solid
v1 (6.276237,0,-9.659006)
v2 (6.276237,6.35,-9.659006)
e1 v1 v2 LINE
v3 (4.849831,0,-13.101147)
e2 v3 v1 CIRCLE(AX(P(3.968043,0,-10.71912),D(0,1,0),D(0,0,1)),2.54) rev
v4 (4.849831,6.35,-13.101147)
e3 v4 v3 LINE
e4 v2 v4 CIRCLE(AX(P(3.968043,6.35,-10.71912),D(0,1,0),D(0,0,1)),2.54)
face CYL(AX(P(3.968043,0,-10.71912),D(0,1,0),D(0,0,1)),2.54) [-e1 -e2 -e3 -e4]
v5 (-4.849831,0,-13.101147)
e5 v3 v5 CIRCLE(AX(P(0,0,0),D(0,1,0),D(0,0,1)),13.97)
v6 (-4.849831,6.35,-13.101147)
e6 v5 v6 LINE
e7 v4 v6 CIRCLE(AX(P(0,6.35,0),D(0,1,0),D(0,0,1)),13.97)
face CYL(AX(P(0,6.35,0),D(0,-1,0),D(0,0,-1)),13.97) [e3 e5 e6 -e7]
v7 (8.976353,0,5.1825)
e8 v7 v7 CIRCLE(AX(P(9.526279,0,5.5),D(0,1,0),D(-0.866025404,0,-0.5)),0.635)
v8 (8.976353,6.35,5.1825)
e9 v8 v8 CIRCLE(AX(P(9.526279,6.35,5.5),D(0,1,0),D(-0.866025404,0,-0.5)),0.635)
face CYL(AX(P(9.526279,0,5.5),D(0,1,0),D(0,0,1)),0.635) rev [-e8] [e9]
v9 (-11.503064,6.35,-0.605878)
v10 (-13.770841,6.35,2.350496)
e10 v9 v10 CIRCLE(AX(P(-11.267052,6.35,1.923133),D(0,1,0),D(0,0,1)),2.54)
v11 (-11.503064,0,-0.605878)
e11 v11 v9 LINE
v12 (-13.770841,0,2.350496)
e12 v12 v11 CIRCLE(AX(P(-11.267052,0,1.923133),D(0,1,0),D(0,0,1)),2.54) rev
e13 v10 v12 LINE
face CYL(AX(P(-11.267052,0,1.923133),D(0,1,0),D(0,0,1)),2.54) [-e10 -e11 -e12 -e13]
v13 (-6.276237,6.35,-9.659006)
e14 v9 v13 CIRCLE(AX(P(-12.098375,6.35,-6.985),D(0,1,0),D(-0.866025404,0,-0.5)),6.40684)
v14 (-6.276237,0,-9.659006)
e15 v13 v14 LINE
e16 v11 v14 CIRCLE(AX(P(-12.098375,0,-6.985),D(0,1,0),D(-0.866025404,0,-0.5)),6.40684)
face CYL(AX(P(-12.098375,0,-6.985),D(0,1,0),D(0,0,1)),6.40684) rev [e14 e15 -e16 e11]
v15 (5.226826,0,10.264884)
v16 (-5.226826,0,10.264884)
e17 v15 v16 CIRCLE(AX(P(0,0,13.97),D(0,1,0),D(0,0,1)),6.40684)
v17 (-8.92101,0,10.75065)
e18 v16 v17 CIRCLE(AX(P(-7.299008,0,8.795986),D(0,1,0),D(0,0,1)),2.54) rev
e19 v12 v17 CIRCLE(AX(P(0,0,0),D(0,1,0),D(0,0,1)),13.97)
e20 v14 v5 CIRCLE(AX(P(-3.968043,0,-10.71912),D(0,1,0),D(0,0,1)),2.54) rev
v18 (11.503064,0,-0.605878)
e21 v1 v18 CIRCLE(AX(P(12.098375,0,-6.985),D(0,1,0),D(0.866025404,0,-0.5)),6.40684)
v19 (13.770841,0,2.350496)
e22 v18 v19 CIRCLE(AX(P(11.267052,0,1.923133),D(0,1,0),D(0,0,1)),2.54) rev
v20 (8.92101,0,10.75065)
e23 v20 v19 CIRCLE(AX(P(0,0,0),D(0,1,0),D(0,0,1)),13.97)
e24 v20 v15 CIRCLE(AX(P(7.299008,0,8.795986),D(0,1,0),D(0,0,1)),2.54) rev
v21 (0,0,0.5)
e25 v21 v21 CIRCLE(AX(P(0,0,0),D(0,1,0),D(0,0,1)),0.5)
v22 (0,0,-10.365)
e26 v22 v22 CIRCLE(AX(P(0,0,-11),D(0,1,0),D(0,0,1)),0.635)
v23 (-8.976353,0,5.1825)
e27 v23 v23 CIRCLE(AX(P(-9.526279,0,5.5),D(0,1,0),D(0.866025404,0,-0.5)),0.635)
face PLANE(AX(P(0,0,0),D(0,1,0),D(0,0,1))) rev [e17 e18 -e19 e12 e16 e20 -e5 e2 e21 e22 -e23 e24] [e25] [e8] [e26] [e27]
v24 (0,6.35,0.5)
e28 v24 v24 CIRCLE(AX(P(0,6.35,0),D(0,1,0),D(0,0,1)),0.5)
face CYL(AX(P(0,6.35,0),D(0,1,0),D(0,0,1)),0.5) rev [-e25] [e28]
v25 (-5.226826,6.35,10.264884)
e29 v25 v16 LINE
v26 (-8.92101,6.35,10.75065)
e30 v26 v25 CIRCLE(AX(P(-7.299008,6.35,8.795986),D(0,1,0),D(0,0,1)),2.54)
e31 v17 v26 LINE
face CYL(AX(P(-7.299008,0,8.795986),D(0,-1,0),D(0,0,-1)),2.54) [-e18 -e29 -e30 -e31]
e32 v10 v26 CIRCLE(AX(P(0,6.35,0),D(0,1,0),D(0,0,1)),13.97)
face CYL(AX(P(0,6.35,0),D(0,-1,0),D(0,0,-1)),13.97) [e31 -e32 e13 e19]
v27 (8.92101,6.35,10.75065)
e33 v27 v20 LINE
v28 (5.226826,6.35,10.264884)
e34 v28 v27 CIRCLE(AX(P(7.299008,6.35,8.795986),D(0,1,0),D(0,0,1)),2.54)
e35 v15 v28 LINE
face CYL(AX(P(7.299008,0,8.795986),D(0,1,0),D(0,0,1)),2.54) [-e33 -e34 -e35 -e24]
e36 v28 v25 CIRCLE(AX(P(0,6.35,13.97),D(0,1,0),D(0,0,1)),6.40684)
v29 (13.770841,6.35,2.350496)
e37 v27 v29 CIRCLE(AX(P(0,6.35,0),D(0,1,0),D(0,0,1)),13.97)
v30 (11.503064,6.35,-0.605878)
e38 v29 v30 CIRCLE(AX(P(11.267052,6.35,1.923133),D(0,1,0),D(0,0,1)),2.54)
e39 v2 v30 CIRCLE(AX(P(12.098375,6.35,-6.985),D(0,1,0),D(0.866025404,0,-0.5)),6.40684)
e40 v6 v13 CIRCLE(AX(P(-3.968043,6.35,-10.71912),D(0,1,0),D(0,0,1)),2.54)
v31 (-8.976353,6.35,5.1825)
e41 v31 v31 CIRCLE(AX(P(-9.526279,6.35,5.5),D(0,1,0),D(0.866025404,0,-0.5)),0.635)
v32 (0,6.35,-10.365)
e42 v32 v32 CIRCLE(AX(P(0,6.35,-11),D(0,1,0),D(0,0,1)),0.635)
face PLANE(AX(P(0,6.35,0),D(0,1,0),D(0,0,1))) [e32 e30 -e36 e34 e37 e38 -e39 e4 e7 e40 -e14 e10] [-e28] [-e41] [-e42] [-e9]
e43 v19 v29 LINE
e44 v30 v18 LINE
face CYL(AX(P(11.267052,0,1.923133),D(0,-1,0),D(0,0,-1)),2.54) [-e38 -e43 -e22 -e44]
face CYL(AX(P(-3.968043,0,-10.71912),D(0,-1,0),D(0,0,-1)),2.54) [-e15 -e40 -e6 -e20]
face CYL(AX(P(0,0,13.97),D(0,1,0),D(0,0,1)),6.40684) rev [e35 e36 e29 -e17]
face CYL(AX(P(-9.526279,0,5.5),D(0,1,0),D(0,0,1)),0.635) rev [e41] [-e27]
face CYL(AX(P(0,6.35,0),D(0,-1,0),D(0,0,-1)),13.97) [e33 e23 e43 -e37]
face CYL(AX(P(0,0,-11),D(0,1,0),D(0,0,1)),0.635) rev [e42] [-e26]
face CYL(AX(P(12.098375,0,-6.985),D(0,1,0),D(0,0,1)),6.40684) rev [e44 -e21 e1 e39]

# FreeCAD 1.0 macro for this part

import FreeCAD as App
import Part
import Sketcher
from FreeCAD import Vector
Q = App.Units.Quantity


def edges_at(feature, points):
    """Names of the edges that pass closest to the given points."""
    edges = feature.Shape.Edges
    near = lambda p: min(range(len(edges)), key=lambda i: edges[i].distToShape(Part.Vertex(*p))[0])
    return sorted({f"Edge{near(p) + 1}" for p in points})

doc = App.newDocument("Part")
params = doc.addObject("Spreadsheet::Sheet", "Params")
for row, (alias, value) in enumerate([
    ("sketch1_diameter", "1.1 in"),
    ("pad1_length", "0.25 in"),
    ("sketch2_diameter", "0.05 in"),
    ("fillet_radius", "0.1 in"),
    ("hole_diameter", "1 mm"),
    ("hole_depth", "0.98 in"),
], start=1):
    params.set(f"A{row}", alias)
    params.set(f"B{row}", "=" + value)
    params.setAlias(f"B{row}", alias)

body = doc.addObject("PartDesign::Body", "Body")

sketch1 = body.newObject("Sketcher::SketchObject", "Sketch")
sketch1.AttachmentSupport = (doc.getObject("XZ_Plane"), [""])
sketch1.MapMode = "FlatFace"
sketch1.addGeometry(Part.Circle(Vector(0, 0, 0), Vector(0, 0, 1), 13.97), False)
sketch1.addConstraint([
    Sketcher.Constraint("Coincident", 0, 3, -1, 1),
    Sketcher.Constraint("Diameter", 0, Q("1.1 in")),
])
sketch1.setExpression("Constraints[1]", "Params.sketch1_diameter")
pad1 = body.newObject("PartDesign::Pad", "Pad")
pad1.Profile = sketch1
pad1.setExpression("Length", "Params.pad1_length")
pad1.Reversed = True

sketch2 = body.newObject("Sketcher::SketchObject", "Sketch001")
sketch2.AttachmentSupport = (doc.getObject("XZ_Plane"), [""])
sketch2.MapMode = "FlatFace"
sketch2.AttachmentOffset = App.Placement(Vector(0, 0, -0.25 * 25.4), App.Rotation())
sketch2.addGeometry(Part.Circle(Vector(0, -11, 0), Vector(0, 0, 1), 0.635), False)
sketch2.addConstraint([
    Sketcher.Constraint("PointOnObject", 0, 3, -2),
    Sketcher.Constraint("Diameter", 0, Q("0.05 in")),
    Sketcher.Constraint("DistanceY", 0, 3, -1, 1, 11.0),
])
sketch2.setExpression("Constraints[1]", "Params.sketch2_diameter")
pocket1 = body.newObject("PartDesign::Pocket", "Pocket")
pocket1.Profile = sketch2
pocket1.Type = "ThroughAll"
pocket1.Reversed = True
doc.recompute()

polarpattern = body.newObject("PartDesign::PolarPattern", "PolarPattern")
polarpattern.Originals = [pocket1]
polarpattern.Axis = (doc.getObject("Y_Axis"), [""])
polarpattern.Angle = 360
polarpattern.Occurrences = 3
body.Tip = polarpattern

sketch3 = body.newObject("Sketcher::SketchObject", "Sketch002")
sketch3.AttachmentSupport = (doc.getObject("XZ_Plane"), [""])
sketch3.MapMode = "FlatFace"
sketch3.AttachmentOffset = App.Placement(Vector(0, 0, -0.25 * 25.4), App.Rotation())
sketch3.addGeometry(Part.Circle(Vector(0, 13.97, 0), Vector(0, 0, 1), 6.40684), False)
sketch3.addConstraint([
    Sketcher.Constraint("PointOnObject", 0, 3, -2),
    Sketcher.Constraint("DistanceY", -1, 1, 0, 3, Q("0.55 in")),
    Sketcher.Constraint("Diameter", 0, 12.813679),
])
pocket2 = body.newObject("PartDesign::Pocket", "Pocket001")
pocket2.Profile = sketch3
pocket2.Type = "ThroughAll"
pocket2.Reversed = True
doc.recompute()

polarpattern2 = body.newObject("PartDesign::PolarPattern", "PolarPattern001")
polarpattern2.Originals = [pocket2]
polarpattern2.Axis = (doc.getObject("Y_Axis"), [""])
polarpattern2.Angle = 360
polarpattern2.Occurrences = 3
body.Tip = polarpattern2
doc.recompute()

fillet = body.newObject("PartDesign::Fillet", "Fillet")
fillet.Base = (polarpattern2, edges_at(polarpattern2, [
    (-6.236, 3.175, 12.501),
    (6.236, 3.175, 12.501),
    (-7.708, 3.175, -11.651),
    (-13.944, 3.175, -0.85),
    (13.944, 3.175, -0.85),
    (7.708, 3.175, -11.651),
]))
fillet.setExpression("Radius", "Params.fillet_radius")

sketch4 = body.newObject("Sketcher::SketchObject", "Sketch003")
sketch4.AttachmentSupport = (doc.getObject("XZ_Plane"), [""])
sketch4.MapMode = "FlatFace"
sketch4.AttachmentOffset = App.Placement(Vector(0, 0, -0.25 * 25.4), App.Rotation())
sketch4.addGeometry(Part.Circle(Vector(0, 0, 0), Vector(0, 0, 1), 0.5), False)
sketch4.addConstraint([
    Sketcher.Constraint("Coincident", 0, 3, -1, 1),
    Sketcher.Constraint("Diameter", 0, 1.0),
])
doc.recompute()
hole = body.newObject("PartDesign::Hole", "Hole")
hole.Profile = sketch4
hole.ThreadType = "None"
hole.setExpression("Diameter", "Params.hole_diameter")
hole.DepthType = "Dimension"
hole.setExpression("Depth", "Params.hole_depth")
hole.DrillPoint = "Angled"
hole.DrillPointAngle = 118
hole.Reversed = True

doc.recompute()
